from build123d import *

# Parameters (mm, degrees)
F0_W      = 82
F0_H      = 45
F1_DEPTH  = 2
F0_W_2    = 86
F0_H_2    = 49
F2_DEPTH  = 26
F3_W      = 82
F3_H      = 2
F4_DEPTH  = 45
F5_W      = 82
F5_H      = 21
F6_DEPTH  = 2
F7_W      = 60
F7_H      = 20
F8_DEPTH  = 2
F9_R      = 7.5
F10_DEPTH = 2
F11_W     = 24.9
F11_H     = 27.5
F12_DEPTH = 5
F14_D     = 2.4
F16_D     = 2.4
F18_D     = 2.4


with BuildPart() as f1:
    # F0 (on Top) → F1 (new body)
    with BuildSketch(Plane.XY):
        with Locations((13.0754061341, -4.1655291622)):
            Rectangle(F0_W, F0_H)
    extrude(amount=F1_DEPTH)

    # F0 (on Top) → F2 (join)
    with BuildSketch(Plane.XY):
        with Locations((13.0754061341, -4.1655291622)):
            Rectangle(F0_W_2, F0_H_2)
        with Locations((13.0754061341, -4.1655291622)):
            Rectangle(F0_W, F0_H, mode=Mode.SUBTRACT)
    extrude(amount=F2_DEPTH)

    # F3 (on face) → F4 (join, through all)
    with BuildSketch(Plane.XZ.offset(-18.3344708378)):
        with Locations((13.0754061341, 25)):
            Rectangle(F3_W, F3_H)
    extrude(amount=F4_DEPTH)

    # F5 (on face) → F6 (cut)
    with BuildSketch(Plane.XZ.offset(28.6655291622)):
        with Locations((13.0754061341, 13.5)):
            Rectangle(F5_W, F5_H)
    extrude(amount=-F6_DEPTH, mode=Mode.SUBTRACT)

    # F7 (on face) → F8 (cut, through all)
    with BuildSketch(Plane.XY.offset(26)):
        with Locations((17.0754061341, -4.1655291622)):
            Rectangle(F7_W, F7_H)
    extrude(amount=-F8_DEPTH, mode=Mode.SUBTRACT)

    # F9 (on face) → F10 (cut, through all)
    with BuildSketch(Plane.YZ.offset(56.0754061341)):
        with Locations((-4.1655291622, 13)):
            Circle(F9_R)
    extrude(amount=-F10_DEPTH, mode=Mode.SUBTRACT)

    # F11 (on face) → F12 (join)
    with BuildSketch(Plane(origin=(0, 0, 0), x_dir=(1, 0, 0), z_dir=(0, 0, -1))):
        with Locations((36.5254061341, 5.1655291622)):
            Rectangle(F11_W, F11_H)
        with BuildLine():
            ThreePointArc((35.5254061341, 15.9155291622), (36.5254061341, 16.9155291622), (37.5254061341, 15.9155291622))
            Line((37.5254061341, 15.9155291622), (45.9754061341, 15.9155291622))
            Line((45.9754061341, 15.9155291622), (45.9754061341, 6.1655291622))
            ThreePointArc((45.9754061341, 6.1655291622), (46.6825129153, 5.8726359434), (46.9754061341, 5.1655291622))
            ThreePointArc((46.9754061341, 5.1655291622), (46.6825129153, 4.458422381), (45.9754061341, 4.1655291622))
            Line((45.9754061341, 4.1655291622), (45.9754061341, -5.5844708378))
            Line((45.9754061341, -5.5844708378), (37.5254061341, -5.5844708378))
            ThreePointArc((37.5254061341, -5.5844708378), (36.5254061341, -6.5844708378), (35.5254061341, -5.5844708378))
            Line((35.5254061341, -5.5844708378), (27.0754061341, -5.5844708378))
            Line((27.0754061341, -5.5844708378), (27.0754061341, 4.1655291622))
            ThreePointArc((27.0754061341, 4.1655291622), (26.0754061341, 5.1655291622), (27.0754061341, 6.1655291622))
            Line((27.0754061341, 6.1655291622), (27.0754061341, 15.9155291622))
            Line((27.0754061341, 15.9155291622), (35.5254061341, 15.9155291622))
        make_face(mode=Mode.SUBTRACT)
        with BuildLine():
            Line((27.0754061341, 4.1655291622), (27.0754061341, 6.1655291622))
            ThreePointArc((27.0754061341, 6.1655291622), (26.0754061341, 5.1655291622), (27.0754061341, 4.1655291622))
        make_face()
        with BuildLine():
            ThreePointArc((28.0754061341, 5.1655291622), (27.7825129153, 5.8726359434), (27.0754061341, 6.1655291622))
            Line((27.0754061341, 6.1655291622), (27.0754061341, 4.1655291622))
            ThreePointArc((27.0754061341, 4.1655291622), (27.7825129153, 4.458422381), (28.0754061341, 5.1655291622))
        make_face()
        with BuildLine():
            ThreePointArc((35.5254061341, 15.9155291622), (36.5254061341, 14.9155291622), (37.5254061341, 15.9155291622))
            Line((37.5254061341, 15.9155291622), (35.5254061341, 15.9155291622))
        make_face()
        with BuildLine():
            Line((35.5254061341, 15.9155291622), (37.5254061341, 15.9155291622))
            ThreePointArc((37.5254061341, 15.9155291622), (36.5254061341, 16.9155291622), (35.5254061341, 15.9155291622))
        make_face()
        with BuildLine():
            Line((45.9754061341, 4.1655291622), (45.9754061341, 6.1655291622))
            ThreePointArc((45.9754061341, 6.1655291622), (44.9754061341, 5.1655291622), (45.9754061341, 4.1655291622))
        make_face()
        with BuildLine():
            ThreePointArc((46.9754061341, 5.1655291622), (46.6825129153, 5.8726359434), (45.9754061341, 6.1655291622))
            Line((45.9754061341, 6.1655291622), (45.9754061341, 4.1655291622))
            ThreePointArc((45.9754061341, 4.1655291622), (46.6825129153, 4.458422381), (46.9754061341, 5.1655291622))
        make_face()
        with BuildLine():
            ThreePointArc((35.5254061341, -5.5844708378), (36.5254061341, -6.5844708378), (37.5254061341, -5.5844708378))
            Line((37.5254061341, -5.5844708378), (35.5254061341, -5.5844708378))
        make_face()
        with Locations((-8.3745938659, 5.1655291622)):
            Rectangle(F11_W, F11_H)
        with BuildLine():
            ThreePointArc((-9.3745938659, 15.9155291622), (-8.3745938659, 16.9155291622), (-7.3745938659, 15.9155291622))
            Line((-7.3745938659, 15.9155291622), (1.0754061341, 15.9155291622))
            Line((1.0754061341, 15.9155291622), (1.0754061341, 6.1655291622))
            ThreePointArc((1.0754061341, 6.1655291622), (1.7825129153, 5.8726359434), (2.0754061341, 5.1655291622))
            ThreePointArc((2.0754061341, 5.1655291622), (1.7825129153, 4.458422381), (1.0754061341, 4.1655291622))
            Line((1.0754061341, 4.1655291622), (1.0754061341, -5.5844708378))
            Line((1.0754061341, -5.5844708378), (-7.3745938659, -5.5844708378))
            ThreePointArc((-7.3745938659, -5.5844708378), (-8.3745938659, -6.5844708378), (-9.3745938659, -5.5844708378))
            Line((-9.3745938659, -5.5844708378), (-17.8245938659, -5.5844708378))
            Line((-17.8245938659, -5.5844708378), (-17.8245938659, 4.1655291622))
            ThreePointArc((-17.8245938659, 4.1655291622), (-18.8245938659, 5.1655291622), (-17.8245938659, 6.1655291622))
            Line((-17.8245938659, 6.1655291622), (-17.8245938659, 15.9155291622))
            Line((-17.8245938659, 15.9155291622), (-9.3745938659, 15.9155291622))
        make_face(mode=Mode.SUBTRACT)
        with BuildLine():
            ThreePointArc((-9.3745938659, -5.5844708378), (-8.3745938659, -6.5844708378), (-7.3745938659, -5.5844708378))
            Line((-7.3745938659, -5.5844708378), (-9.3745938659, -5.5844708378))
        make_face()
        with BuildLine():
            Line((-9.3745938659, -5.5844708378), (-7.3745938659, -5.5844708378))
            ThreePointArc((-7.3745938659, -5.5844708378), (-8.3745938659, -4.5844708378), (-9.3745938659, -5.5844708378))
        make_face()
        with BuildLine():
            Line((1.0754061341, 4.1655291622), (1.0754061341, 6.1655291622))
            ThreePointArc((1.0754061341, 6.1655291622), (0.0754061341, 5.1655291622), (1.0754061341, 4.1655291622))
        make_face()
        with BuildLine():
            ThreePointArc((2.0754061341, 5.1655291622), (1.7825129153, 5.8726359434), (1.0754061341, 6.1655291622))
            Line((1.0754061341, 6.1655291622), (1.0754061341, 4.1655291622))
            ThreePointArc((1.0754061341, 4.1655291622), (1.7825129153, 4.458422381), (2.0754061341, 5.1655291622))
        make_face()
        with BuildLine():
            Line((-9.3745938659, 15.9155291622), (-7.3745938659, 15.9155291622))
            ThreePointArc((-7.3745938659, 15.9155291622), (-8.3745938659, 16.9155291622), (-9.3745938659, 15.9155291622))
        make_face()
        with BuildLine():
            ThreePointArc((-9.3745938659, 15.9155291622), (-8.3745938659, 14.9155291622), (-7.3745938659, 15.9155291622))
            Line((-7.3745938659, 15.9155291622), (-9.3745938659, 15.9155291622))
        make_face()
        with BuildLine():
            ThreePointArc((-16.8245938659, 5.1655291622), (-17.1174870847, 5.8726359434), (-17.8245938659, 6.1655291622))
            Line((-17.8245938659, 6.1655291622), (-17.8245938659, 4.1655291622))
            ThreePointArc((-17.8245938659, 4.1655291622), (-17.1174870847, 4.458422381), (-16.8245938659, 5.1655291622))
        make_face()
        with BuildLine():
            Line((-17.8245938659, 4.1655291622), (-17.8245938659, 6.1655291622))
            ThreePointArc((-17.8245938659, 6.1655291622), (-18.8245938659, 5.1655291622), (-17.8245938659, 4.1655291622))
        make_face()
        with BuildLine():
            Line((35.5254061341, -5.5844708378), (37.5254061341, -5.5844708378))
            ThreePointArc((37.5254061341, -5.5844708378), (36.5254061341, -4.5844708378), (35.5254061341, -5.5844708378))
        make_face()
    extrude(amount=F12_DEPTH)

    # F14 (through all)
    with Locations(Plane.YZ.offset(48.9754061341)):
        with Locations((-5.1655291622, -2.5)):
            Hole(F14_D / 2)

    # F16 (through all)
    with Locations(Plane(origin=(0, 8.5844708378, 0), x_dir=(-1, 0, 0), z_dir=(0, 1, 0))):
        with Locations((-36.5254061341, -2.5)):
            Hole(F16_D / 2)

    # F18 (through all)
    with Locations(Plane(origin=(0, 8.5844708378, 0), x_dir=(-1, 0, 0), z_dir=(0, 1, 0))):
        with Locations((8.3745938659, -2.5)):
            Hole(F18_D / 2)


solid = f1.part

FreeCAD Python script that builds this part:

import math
import FreeCAD as App
import Part
import Sketcher

doc = App.newDocument("Part")
body = doc.addObject("PartDesign::Body", "Body")

# Sketch on XY plane
sketch1 = body.newObject("Sketcher::SketchObject", "Sketch")
sketch1.AttachmentSupport = (doc.getObject("XY_Plane"), [""])
sketch1.MapMode = "FlatFace"
sketch1.addGeometry([
    Part.LineSegment(App.Vector(-28, 18, 0), App.Vector(-28, -27, 0)),
    Part.LineSegment(App.Vector(-28, -27, 0), App.Vector(54, -27, 0)),
    Part.LineSegment(App.Vector(54, -27, 0), App.Vector(54, 18, 0)),
    Part.LineSegment(App.Vector(54, 18, 0), App.Vector(-28, 18, 0)),
], False)
sketch1.addConstraint([
    Sketcher.Constraint("Coincident", 0, 2, 1, 1),
    Sketcher.Constraint("Coincident", 1, 2, 2, 1),
    Sketcher.Constraint("Coincident", 2, 2, 3, 1),
    Sketcher.Constraint("Coincident", 3, 2, 0, 1),
    Sketcher.Constraint("Vertical", 0),
    Sketcher.Constraint("Horizontal", 1),
    Sketcher.Constraint("Vertical", 2),
    Sketcher.Constraint("Horizontal", 3),
    Sketcher.Constraint("DistanceX", 1, 1, 1, 2, 82.0),
    Sketcher.Constraint("DistanceY", 0, 2, 0, 1, 45.0),
    Sketcher.Constraint("DistanceY", 0, 2, -1, 1, 26.665529),
    Sketcher.Constraint("DistanceX", 0, 2, -1, 1, 27.924594),
])
pad1 = body.newObject("PartDesign::Pad", "Pad")
pad1.Profile = sketch1
pad1.Length = 2

# Sketch on XY plane
sketch2 = body.newObject("Sketcher::SketchObject", "Sketch001")
sketch2.AttachmentSupport = (doc.getObject("XY_Plane"), [""])
sketch2.MapMode = "FlatFace"
sketch2.addGeometry([
    Part.LineSegment(App.Vector(-30, 20, 0), App.Vector(-30, -29, 0)),  # 0
    Part.LineSegment(App.Vector(-30, -29, 0), App.Vector(56, -29, 0)),  # 1
    Part.LineSegment(App.Vector(56, -29, 0), App.Vector(56, 20, 0)),  # 2
    Part.LineSegment(App.Vector(56, 20, 0), App.Vector(-30, 20, 0)),  # 3
    Part.LineSegment(App.Vector(54, -27, 0), App.Vector(-28, -27, 0)),  # 4
    Part.LineSegment(App.Vector(-28, -27, 0), App.Vector(-28, 18, 0)),  # 5
    Part.LineSegment(App.Vector(-28, 18, 0), App.Vector(54, 18, 0)),  # 6
    Part.LineSegment(App.Vector(54, 18, 0), App.Vector(54, -27, 0)),  # 7
], False)
sketch2.addConstraint([
    Sketcher.Constraint("Coincident", 0, 2, 1, 1),
    Sketcher.Constraint("Coincident", 1, 2, 2, 1),
    Sketcher.Constraint("Coincident", 2, 2, 3, 1),
    Sketcher.Constraint("Coincident", 3, 2, 0, 1),
    Sketcher.Constraint("Coincident", 4, 2, 5, 1),
    Sketcher.Constraint("Coincident", 5, 2, 6, 1),
    Sketcher.Constraint("Coincident", 6, 2, 7, 1),
    Sketcher.Constraint("Coincident", 7, 2, 4, 1),
    Sketcher.Constraint("Vertical", 0),
    Sketcher.Constraint("Horizontal", 1),
    Sketcher.Constraint("Vertical", 2),
    Sketcher.Constraint("Horizontal", 3),
    Sketcher.Constraint("Horizontal", 4),
    Sketcher.Constraint("Vertical", 5),
    Sketcher.Constraint("Horizontal", 6),
    Sketcher.Constraint("Vertical", 7),
    Sketcher.Constraint("DistanceX", 1, 1, 1, 2, 86.0),
    Sketcher.Constraint("DistanceX", 4, 2, 4, 1, 82.0),
    Sketcher.Constraint("DistanceY", 0, 2, 0, 1, 49.0),
    Sketcher.Constraint("DistanceY", 5, 1, 5, 2, 45.0),
    Sketcher.Constraint("DistanceX", 0, 2, 4, 2, 2.0),
    Sketcher.Constraint("DistanceY", 0, 2, 4, 2, 2.0),
    Sketcher.Constraint("DistanceY", 0, 2, -1, 1, 28.665529),
    Sketcher.Constraint("DistanceX", 0, 2, -1, 1, 29.924594),
])
pad2 = body.newObject("PartDesign::Pad", "Pad001")
pad2.Profile = sketch2
pad2.Length = 26

# Sketch on XZ plane
sketch3 = body.newObject("Sketcher::SketchObject", "Sketch002")
sketch3.AttachmentSupport = (doc.getObject("XZ_Plane"), [""])
sketch3.MapMode = "FlatFace"
sketch3.AttachmentOffset = App.Placement(App.Vector(0, 0, -18.334471), App.Rotation())
sketch3.addGeometry([
    Part.LineSegment(App.Vector(-27.9, 26, 0), App.Vector(-27.9, 24, 0)),
    Part.LineSegment(App.Vector(-27.9, 24, 0), App.Vector(54.1, 24, 0)),
    Part.LineSegment(App.Vector(54.1, 24, 0), App.Vector(54.1, 26, 0)),
    Part.LineSegment(App.Vector(54.1, 26, 0), App.Vector(-27.9, 26, 0)),
], False)
sketch3.addConstraint([
    Sketcher.Constraint("Coincident", 0, 2, 1, 1),
    Sketcher.Constraint("Coincident", 1, 2, 2, 1),
    Sketcher.Constraint("Coincident", 2, 2, 3, 1),
    Sketcher.Constraint("Coincident", 3, 2, 0, 1),
    Sketcher.Constraint("Vertical", 0),
    Sketcher.Constraint("Horizontal", 1),
    Sketcher.Constraint("Vertical", 2),
    Sketcher.Constraint("Horizontal", 3),
    Sketcher.Constraint("DistanceX", 1, 1, 1, 2, 82.0),
    Sketcher.Constraint("DistanceY", 0, 2, 0, 1, 2.0),
    Sketcher.Constraint("DistanceY", -1, 1, 0, 2, 24.0),
    Sketcher.Constraint("DistanceX", 0, 2, -1, 1, 27.924594),
])
pad3 = body.newObject("PartDesign::Pad", "Pad002")
pad3.Profile = sketch3
pad3.Type = "UpToLast"

# Sketch on XZ plane
sketch4 = body.newObject("Sketcher::SketchObject", "Sketch003")
sketch4.AttachmentSupport = (doc.getObject("XZ_Plane"), [""])
sketch4.MapMode = "FlatFace"
sketch4.AttachmentOffset = App.Placement(App.Vector(0, 0, 28.665529), App.Rotation())
sketch4.addGeometry([
    Part.LineSegment(App.Vector(-28, 24, 0), App.Vector(-28, 3, 0)),
    Part.LineSegment(App.Vector(-28, 3, 0), App.Vector(54, 3, 0)),
    Part.LineSegment(App.Vector(54, 3, 0), App.Vector(54, 24, 0)),
    Part.LineSegment(App.Vector(54, 24, 0), App.Vector(-28, 24, 0)),
], False)
sketch4.addConstraint([
    Sketcher.Constraint("Coincident", 0, 2, 1, 1),
    Sketcher.Constraint("Coincident", 1, 2, 2, 1),
    Sketcher.Constraint("Coincident", 2, 2, 3, 1),
    Sketcher.Constraint("Coincident", 3, 2, 0, 1),
    Sketcher.Constraint("Vertical", 0),
    Sketcher.Constraint("Horizontal", 1),
    Sketcher.Constraint("Vertical", 2),
    Sketcher.Constraint("Horizontal", 3),
    Sketcher.Constraint("DistanceX", 1, 1, 1, 2, 82.0),
    Sketcher.Constraint("DistanceY", 0, 2, 0, 1, 21.0),
    Sketcher.Constraint("DistanceY", -1, 1, 0, 2, 3.0),
    Sketcher.Constraint("DistanceX", 0, 2, -1, 1, 27.924594),
])
pocket1 = body.newObject("PartDesign::Pocket", "Pocket")
pocket1.Profile = sketch4
pocket1.Length = 2

# Sketch on XY plane
sketch5 = body.newObject("Sketcher::SketchObject", "Sketch004")
sketch5.AttachmentSupport = (doc.getObject("XY_Plane"), [""])
sketch5.MapMode = "FlatFace"
sketch5.AttachmentOffset = App.Placement(App.Vector(0, 0, 26), App.Rotation())
sketch5.addGeometry([
    Part.LineSegment(App.Vector(-13, 6, 0), App.Vector(-13, -14, 0)),
    Part.LineSegment(App.Vector(-13, -14, 0), App.Vector(47, -14, 0)),
    Part.LineSegment(App.Vector(47, -14, 0), App.Vector(47, 6, 0)),
    Part.LineSegment(App.Vector(47, 6, 0), App.Vector(-13, 6, 0)),
], False)
sketch5.addConstraint([
    Sketcher.Constraint("Coincident", 0, 2, 1, 1),
    Sketcher.Constraint("Coincident", 1, 2, 2, 1),
    Sketcher.Constraint("Coincident", 2, 2, 3, 1),
    Sketcher.Constraint("Coincident", 3, 2, 0, 1),
    Sketcher.Constraint("Vertical", 0),
    Sketcher.Constraint("Horizontal", 1),
    Sketcher.Constraint("Vertical", 2),
    Sketcher.Constraint("Horizontal", 3),
    Sketcher.Constraint("DistanceX", 1, 1, 1, 2, 60.0),
    Sketcher.Constraint("DistanceY", 0, 2, 0, 1, 20.0),
    Sketcher.Constraint("DistanceY", 0, 2, -1, 1, 14.165529),
    Sketcher.Constraint("DistanceX", 0, 2, -1, 1, 12.924594),
])
pocket2 = body.newObject("PartDesign::Pocket", "Pocket001")
pocket2.Profile = sketch5
pocket2.Length = 2

# Sketch on YZ plane
sketch6 = body.newObject("Sketcher::SketchObject", "Sketch005")
sketch6.AttachmentSupport = (doc.getObject("YZ_Plane"), [""])
sketch6.MapMode = "FlatFace"
sketch6.AttachmentOffset = App.Placement(App.Vector(0, 0, 56.075406), App.Rotation())
sketch6.addGeometry(Part.Circle(App.Vector(-4, 13, 0), App.Vector(0, 0, 1), 8), False)
sketch6.addConstraint([
    Sketcher.Constraint("Diameter", 0, 15.0),
    Sketcher.Constraint("DistanceY", -1, 1, 0, 3, 13.0),
    Sketcher.Constraint("DistanceX", 0, 3, -1, 1, 4.165529),
])
pocket3 = body.newObject("PartDesign::Pocket", "Pocket002")
pocket3.Profile = sketch6
pocket3.Length = 2

# Sketch on XY plane
sketch7 = body.newObject("Sketcher::SketchObject", "Sketch006")
sketch7.AttachmentSupport = (doc.getObject("XY_Plane"), [""])
sketch7.MapMode = "FlatFace"
sketch7.addGeometry([
    Part.LineSegment(App.Vector(24.1, -18.9, 0), App.Vector(24.1, 8.6, 0)),  # 0
    Part.LineSegment(App.Vector(24.1, 8.6, 0), App.Vector(49, 8.6, 0)),  # 1
    Part.LineSegment(App.Vector(49, 8.6, 0), App.Vector(49, -18.9, 0)),  # 2
    Part.LineSegment(App.Vector(49, -18.9, 0), App.Vector(24.1, -18.9, 0)),  # 3
    Part.LineSegment(App.Vector(27.1, -15.9, 0), App.Vector(35.5, -15.9, 0)),  # 4
    Part.ArcOfCircle(Part.Circle(App.Vector(36.5, -15.9, 0), App.Vector(0, 0, 1), 1), math.radians(0), math.radians(180)),  # 5
    Part.LineSegment(App.Vector(37.5, -15.9, 0), App.Vector(46, -15.9, 0)),  # 6
    Part.LineSegment(App.Vector(46, -15.9, 0), App.Vector(46, -6.2, 0)),  # 7
    Part.ArcOfCircle(Part.Circle(App.Vector(46, -5.2, 0), App.Vector(0, 0, 1), 1), math.radians(90), math.radians(270)),  # 8
    Part.LineSegment(App.Vector(46, -4.2, 0), App.Vector(46, 5.6, 0)),  # 9
    Part.LineSegment(App.Vector(46, 5.6, 0), App.Vector(37.5, 5.6, 0)),  # 10
    Part.ArcOfCircle(Part.Circle(App.Vector(36.5, 5.6, 0), App.Vector(0, 0, 1), 1), math.radians(180), math.radians(360)),  # 11
    Part.LineSegment(App.Vector(35.5, 5.6, 0), App.Vector(27.1, 5.6, 0)),  # 12
    Part.LineSegment(App.Vector(27.1, 5.6, 0), App.Vector(27.1, -4.2, 0)),  # 13
    Part.ArcOfCircle(Part.Circle(App.Vector(27.1, -5.2, 0), App.Vector(0, 0, 1), 1), math.radians(0), math.radians(90)),  # 14
    Part.ArcOfCircle(Part.Circle(App.Vector(27.1, -5.2, 0), App.Vector(0, 0, 1), 1), math.radians(-90), math.radians(0)),  # 15
    Part.LineSegment(App.Vector(27.1, -6.2, 0), App.Vector(27.1, -15.9, 0)),  # 16
    Part.LineSegment(App.Vector(-20.8, -18.9, 0), App.Vector(-20.8, 8.6, 0)),  # 17
    Part.LineSegment(App.Vector(-20.8, 8.6, 0), App.Vector(4.1, 8.6, 0)),  # 18
    Part.LineSegment(App.Vector(4.1, 8.6, 0), App.Vector(4.1, -18.9, 0)),  # 19
    Part.LineSegment(App.Vector(4.1, -18.9, 0), App.Vector(-20.8, -18.9, 0)),  # 20
    Part.LineSegment(App.Vector(-17.8, -15.9, 0), App.Vector(-9.4, -15.9, 0)),  # 21
    Part.ArcOfCircle(Part.Circle(App.Vector(-8.4, -15.9, 0), App.Vector(0, 0, 1), 1), math.radians(0), math.radians(180)),  # 22
    Part.LineSegment(App.Vector(-7.4, -15.9, 0), App.Vector(1.1, -15.9, 0)),  # 23
    Part.LineSegment(App.Vector(1.1, -15.9, 0), App.Vector(1.1, -6.2, 0)),  # 24
    Part.ArcOfCircle(Part.Circle(App.Vector(1.1, -5.2, 0), App.Vector(0, 0, 1), 1), math.radians(90), math.radians(270)),  # 25
    Part.LineSegment(App.Vector(1.1, -4.2, 0), App.Vector(1.1, 5.6, 0)),  # 26
    Part.LineSegment(App.Vector(1.1, 5.6, 0), App.Vector(-7.4, 5.6, 0)),  # 27
    Part.ArcOfCircle(Part.Circle(App.Vector(-8.4, 5.6, 0), App.Vector(0, 0, 1), 1), math.radians(180), math.radians(360)),  # 28
    Part.LineSegment(App.Vector(-9.4, 5.6, 0), App.Vector(-17.8, 5.6, 0)),  # 29
    Part.LineSegment(App.Vector(-17.8, 5.6, 0), App.Vector(-17.8, -4.2, 0)),  # 30
    Part.ArcOfCircle(Part.Circle(App.Vector(-17.8, -5.2, 0), App.Vector(0, 0, 1), 1), math.radians(0), math.radians(90)),  # 31
    Part.ArcOfCircle(Part.Circle(App.Vector(-17.8, -5.2, 0), App.Vector(0, 0, 1), 1), math.radians(-90), math.radians(0)),  # 32
    Part.LineSegment(App.Vector(-17.8, -6.2, 0), App.Vector(-17.8, -15.9, 0)),  # 33
], False)
sketch7.addConstraint([
    Sketcher.Constraint("Coincident", 0, 2, 1, 1),
    Sketcher.Constraint("Coincident", 1, 2, 2, 1),
    Sketcher.Constraint("Coincident", 2, 2, 3, 1),
    Sketcher.Constraint("Coincident", 3, 2, 0, 1),
    Sketcher.Constraint("Coincident", 4, 2, 5, 2),
    Sketcher.Constraint("Coincident", 5, 1, 6, 1),
    Sketcher.Constraint("Coincident", 6, 2, 7, 1),
    Sketcher.Constraint("Coincident", 7, 2, 8, 2),
    Sketcher.Constraint("Coincident", 8, 1, 9, 1),
    Sketcher.Constraint("Coincident", 9, 2, 10, 1),
    Sketcher.Constraint("Coincident", 10, 2, 11, 2),
    Sketcher.Constraint("Coincident", 11, 1, 12, 1),
    Sketcher.Constraint("Coincident", 12, 2, 13, 1),
    Sketcher.Constraint("Coincident", 13, 2, 14, 2),
    Sketcher.Constraint("Tangent", 14, 1, 15, 2),
    Sketcher.Constraint("Coincident", 15, 1, 16, 1),
    Sketcher.Constraint("Coincident", 16, 2, 4, 1),
    Sketcher.Constraint("Coincident", 17, 2, 18, 1),
    Sketcher.Constraint("Coincident", 18, 2, 19, 1),
    Sketcher.Constraint("Coincident", 19, 2, 20, 1),
    Sketcher.Constraint("Coincident", 20, 2, 17, 1),
    Sketcher.Constraint("Coincident", 21, 2, 22, 2),
    Sketcher.Constraint("Coincident", 22, 1, 23, 1),
    Sketcher.Constraint("Coincident", 23, 2, 24, 1),
    Sketcher.Constraint("Coincident", 24, 2, 25, 2),
    Sketcher.Constraint("Coincident", 25, 1, 26, 1),
    Sketcher.Constraint("Coincident", 26, 2, 27, 1),
    Sketcher.Constraint("Coincident", 27, 2, 28, 2),
    Sketcher.Constraint("Coincident", 28, 1, 29, 1),
    Sketcher.Constraint("Coincident", 29, 2, 30, 1),
    Sketcher.Constraint("Coincident", 30, 2, 31, 2),
    Sketcher.Constraint("Tangent", 31, 1, 32, 2),
    Sketcher.Constraint("Coincident", 32, 1, 33, 1),
    Sketcher.Constraint("Coincident", 33, 2, 21, 1),
    Sketcher.Constraint("Vertical", 0),
    Sketcher.Constraint("Horizontal", 1),
    Sketcher.Constraint("Vertical", 2),
    Sketcher.Constraint("Horizontal", 3),
    Sketcher.Constraint("Horizontal", 4),
    Sketcher.Constraint("Horizontal", 6),
    Sketcher.Constraint("Vertical", 7),
    Sketcher.Constraint("Vertical", 9),
    Sketcher.Constraint("Horizontal", 10),
    Sketcher.Constraint("Horizontal", 12),
    Sketcher.Constraint("Vertical", 13),
    Sketcher.Constraint("Vertical", 16),
    Sketcher.Constraint("Vertical", 17),
    Sketcher.Constraint("Horizontal", 18),
    Sketcher.Constraint("Vertical", 19),
    Sketcher.Constraint("Horizontal", 20),
    Sketcher.Constraint("Horizontal", 21),
    Sketcher.Constraint("Horizontal", 23),
    Sketcher.Constraint("Vertical", 24),
    Sketcher.Constraint("Vertical", 26),
    Sketcher.Constraint("Horizontal", 27),
    Sketcher.Constraint("Horizontal", 29),
    Sketcher.Constraint("Vertical", 30),
    Sketcher.Constraint("Vertical", 33),
    Sketcher.Constraint("Equal", 5, 8),
    Sketcher.Constraint("Equal", 8, 11),
    Sketcher.Constraint("Equal", 11, 14),
    Sketcher.Constraint("Equal", 14, 15),
    Sketcher.Constraint("Equal", 15, 22),
    Sketcher.Constraint("Equal", 22, 25),
    Sketcher.Constraint("Equal", 25, 28),
    Sketcher.Constraint("Equal", 28, 31),
    Sketcher.Constraint("Equal", 31, 32),
    Sketcher.Constraint("Horizontal", 8, 3, 14, 3),
    Sketcher.Constraint("Horizontal", 5, 3, 22, 3),
    Sketcher.Constraint("Horizontal", 15, 3, 25, 3),
    Sketcher.Constraint("Horizontal", 11, 3, 28, 3),
    Sketcher.Constraint("Horizontal", 25, 3, 31, 3),
    Sketcher.Constraint("Horizontal", 22, 3, 4, 2),
    Sketcher.Constraint("Horizontal", 4, 2, 5, 1),
    Sketcher.Constraint("Horizontal", 28, 3, 9, 2),
    Sketcher.Constraint("Horizontal", 10, 2, 11, 1),
    Sketcher.Constraint("Horizontal", 32, 3, 14, 1),
    Sketcher.Constraint("Horizontal", 1, 2, 17, 2),
    Sketcher.Constraint("Horizontal", 3, 2, 19, 2),
    Sketcher.Constraint("Horizontal", 16, 2, 21, 2),
    Sketcher.Constraint("Horizontal", 21, 2, 22, 1),
    Sketcher.Constraint("Horizontal", 12, 2, 26, 2),
    Sketcher.Constraint("Horizontal", 27, 2, 28, 1),
    Sketcher.Constraint("Horizontal", 14, 1, 31, 1),
    Sketcher.Constraint("Vertical", 5, 3, 11, 3),
    Sketcher.Constraint("Vertical", 22, 3, 28, 3),
    Sketcher.Constraint("Vertical", 8, 3, 6, 2),
    Sketcher.Constraint("Vertical", 7, 2, 8, 1),
    Sketcher.Constraint("Vertical", 15, 3, 12, 2),
    Sketcher.Constraint("Vertical", 13, 2, 15, 1),
    Sketcher.Constraint("Vertical", 25, 3, 23, 2),
    Sketcher.Constraint("Vertical", 24, 2, 25, 1),
    Sketcher.Constraint("Vertical", 32, 3, 29, 2),
    Sketcher.Constraint("Vertical", 30, 2, 32, 1),
    Sketcher.Constraint("Equal", 4, 6),
    Sketcher.Constraint("Equal", 3, 18),
    Sketcher.Constraint("Equal", 12, 21),
    Sketcher.Constraint("Equal", 21, 23),
    Sketcher.Constraint("Equal", 7, 9),
    Sketcher.Constraint("Radius", 5, 1.0),
    Sketcher.Constraint("DistanceX", 1, 1, 1, 2, 24.9),
    Sketcher.Constraint("DistanceY", 0, 1, 0, 2, 27.5),
    Sketcher.Constraint("DistanceX", 25, 3, 14, 3, 26.0),
    Sketcher.Constraint("DistanceY", 11, 3, 0, 2, 3.0),
    Sketcher.Constraint("DistanceX", 0, 2, 14, 3, 3.0),
    Sketcher.Constraint("DistanceX", 8, 3, 1, 2, 3.0),
    Sketcher.Constraint("DistanceY", 2, 2, 5, 3, 3.0),
    Sketcher.Constraint("DistanceX", 17, 2, 31, 3, 3.0),
    Sketcher.Constraint("DistanceY", 5, 3, -1, 1, 15.915529),
    Sketcher.Constraint("DistanceX", -1, 1, 5, 3, 36.525406),
])
pad4 = body.newObject("PartDesign::Pad", "Pad003")
pad4.Profile = sketch7
pad4.Length = 5
pad4.Reversed = True

# Sketch on YZ plane
sketch8 = body.newObject("Sketcher::SketchObject", "Sketch007")
sketch8.AttachmentSupport = (doc.getObject("YZ_Plane"), [""])
sketch8.MapMode = "FlatFace"
sketch8.AttachmentOffset = App.Placement(App.Vector(0, 0, 48.975406), App.Rotation())
sketch8.addGeometry(Part.Circle(App.Vector(-5.2, -2.5, 0), App.Vector(0, 0, 1), 1.2), False)
sketch8.addConstraint([
    Sketcher.Constraint("Diameter", 0, 2.4),
    Sketcher.Constraint("DistanceY", 0, 3, -1, 1, 2.5),
    Sketcher.Constraint("DistanceX", 0, 3, -1, 1, 5.165529),
])
doc.recompute()
hole = body.newObject("PartDesign::Hole", "Hole")
hole.Profile = sketch8
hole.ThreadType = "None"
hole.Diameter = 2.4
hole.DepthType = "ThroughAll"

# Sketch on XZ plane
sketch9 = body.newObject("Sketcher::SketchObject", "Sketch008")
sketch9.AttachmentSupport = (doc.getObject("XZ_Plane"), [""])
sketch9.MapMode = "FlatFace"
sketch9.AttachmentOffset = App.Placement(App.Vector(0, 0, -8.584471), App.Rotation())
sketch9.addGeometry(Part.Circle(App.Vector(36.5, -2.5, 0), App.Vector(0, 0, 1), 1.2), False)
sketch9.addConstraint([
    Sketcher.Constraint("Diameter", 0, 2.4),
    Sketcher.Constraint("DistanceY", 0, 3, -1, 1, 2.5),
    Sketcher.Constraint("DistanceX", -1, 1, 0, 3, 36.525406),
])
doc.recompute()
hole2 = body.newObject("PartDesign::Hole", "Hole001")
hole2.Profile = sketch9
hole2.ThreadType = "None"
hole2.Diameter = 2.4
hole2.DepthType = "ThroughAll"
hole2.Reversed = True

# Sketch on XZ plane
sketch10 = body.newObject("Sketcher::SketchObject", "Sketch009")
sketch10.AttachmentSupport = (doc.getObject("XZ_Plane"), [""])
sketch10.MapMode = "FlatFace"
sketch10.AttachmentOffset = App.Placement(App.Vector(0, 0, -8.584471), App.Rotation())
sketch10.addGeometry(Part.Circle(App.Vector(-8.4, -2.5, 0), App.Vector(0, 0, 1), 1.2), False)
sketch10.addConstraint([
    Sketcher.Constraint("Diameter", 0, 2.4),
    Sketcher.Constraint("DistanceY", 0, 3, -1, 1, 2.5),
    Sketcher.Constraint("DistanceX", 0, 3, -1, 1, 8.374594),
])
doc.recompute()
hole3 = body.newObject("PartDesign::Hole", "Hole002")
hole3.Profile = sketch10
hole3.ThreadType = "None"
hole3.Diameter = 2.4
hole3.DepthType = "ThroughAll"
hole3.Reversed = True

doc.recompute()
